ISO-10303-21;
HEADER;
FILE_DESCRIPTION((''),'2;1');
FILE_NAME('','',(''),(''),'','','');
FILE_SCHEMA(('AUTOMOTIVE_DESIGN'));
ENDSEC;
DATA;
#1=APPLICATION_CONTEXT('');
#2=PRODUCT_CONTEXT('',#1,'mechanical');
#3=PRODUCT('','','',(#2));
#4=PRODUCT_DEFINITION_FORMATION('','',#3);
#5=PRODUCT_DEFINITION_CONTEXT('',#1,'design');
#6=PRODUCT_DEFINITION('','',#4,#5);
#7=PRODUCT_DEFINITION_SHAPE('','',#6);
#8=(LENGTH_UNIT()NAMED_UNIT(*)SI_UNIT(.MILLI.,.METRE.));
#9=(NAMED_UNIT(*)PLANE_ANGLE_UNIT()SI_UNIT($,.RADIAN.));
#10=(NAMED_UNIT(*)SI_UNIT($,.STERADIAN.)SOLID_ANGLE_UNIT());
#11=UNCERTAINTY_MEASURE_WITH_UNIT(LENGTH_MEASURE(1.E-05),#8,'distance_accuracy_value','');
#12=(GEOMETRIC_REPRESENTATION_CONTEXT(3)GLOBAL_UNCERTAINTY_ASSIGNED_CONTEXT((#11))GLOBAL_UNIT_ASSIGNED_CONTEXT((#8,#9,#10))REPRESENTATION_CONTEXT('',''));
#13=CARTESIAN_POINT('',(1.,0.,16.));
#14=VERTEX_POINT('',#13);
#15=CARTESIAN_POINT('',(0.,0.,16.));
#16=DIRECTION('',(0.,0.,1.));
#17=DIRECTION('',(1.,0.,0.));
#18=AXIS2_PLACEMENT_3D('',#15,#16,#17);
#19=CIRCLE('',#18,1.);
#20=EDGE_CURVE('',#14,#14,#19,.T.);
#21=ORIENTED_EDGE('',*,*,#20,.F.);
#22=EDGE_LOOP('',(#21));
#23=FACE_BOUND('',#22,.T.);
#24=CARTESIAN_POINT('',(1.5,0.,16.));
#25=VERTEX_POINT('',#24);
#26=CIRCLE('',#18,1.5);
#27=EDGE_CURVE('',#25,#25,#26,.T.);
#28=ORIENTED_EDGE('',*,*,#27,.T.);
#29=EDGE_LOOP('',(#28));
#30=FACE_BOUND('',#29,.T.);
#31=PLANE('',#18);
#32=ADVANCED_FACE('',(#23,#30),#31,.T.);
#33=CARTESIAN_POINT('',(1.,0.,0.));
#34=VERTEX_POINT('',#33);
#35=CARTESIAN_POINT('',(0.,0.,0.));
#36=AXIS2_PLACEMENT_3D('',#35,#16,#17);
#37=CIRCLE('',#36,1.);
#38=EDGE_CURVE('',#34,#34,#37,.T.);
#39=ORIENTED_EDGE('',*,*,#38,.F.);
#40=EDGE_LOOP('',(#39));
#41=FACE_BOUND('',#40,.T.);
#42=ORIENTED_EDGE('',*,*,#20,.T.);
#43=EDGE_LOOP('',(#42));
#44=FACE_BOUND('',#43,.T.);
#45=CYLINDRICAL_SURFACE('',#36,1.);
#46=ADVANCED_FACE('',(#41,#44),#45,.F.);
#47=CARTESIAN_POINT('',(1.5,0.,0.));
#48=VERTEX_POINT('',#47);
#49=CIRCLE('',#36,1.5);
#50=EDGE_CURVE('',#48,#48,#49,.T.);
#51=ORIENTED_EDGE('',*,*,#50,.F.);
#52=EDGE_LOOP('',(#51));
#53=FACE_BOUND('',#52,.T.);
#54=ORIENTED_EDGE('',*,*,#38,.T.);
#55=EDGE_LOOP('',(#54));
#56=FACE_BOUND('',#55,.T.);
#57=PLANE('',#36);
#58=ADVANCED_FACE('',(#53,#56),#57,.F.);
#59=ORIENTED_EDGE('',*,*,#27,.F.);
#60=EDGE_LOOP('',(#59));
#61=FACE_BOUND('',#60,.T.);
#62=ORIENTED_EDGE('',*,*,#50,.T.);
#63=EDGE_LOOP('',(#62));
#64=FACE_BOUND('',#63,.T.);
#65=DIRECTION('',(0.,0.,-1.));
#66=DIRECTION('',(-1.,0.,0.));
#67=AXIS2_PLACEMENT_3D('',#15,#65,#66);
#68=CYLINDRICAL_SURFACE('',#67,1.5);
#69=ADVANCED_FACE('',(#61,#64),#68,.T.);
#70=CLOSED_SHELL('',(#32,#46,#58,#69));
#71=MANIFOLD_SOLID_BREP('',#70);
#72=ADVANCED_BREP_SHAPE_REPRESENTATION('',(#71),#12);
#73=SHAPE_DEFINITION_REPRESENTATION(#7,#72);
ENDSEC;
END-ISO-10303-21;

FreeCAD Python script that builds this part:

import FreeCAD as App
import Part
import Sketcher

V = App.Vector
Q = App.Units.Quantity

doc = App.newDocument("Part")
params = doc.addObject("Spreadsheet::Sheet", "Params")
for row, (alias, value) in enumerate([
    ("sketch1_diameter", "3 mm"),
    ("pad1_length", "16 mm"),
    ("sketch2_diameter", "2 mm"),
    ("pocket1_length", "16 mm"),
], start=1):
    params.set(f"A{row}", alias)
    params.set(f"B{row}", "=" + value)
    params.setAlias(f"B{row}", alias)

body = doc.addObject("PartDesign::Body", "Body")

# Sketch on XY plane
sketch1 = body.newObject("Sketcher::SketchObject", "Sketch")
sketch1.AttachmentSupport = (doc.getObject("XY_Plane"), [""])
sketch1.MapMode = "FlatFace"
sketch1.addGeometry(Part.Circle(V(0, 0, 0), V(0, 0, 1), 1.5), False)
sketch1.addConstraint(Sketcher.Constraint("Coincident", 0, 3, -1, 1))
sketch1.addConstraint(Sketcher.Constraint("Diameter", 0, Q("3 mm")))
sketch1.setExpression("Constraints[1]", "Params.sketch1_diameter")
pad1 = body.newObject("PartDesign::Pad", "Pad")
pad1.Profile = sketch1
pad1.setExpression("Length", "Params.pad1_length")

# Sketch on XY plane
sketch2 = body.newObject("Sketcher::SketchObject", "Sketch001")
sketch2.AttachmentSupport = (doc.getObject("XY_Plane"), [""])
sketch2.MapMode = "FlatFace"
sketch2.AttachmentOffset = App.Placement(V(0, 0, 16), App.Rotation())
sketch2.addGeometry(Part.Circle(V(0, 0, 0), V(0, 0, 1), 1), False)
sketch2.addConstraint(Sketcher.Constraint("Coincident", 0, 3, -1, 1))
sketch2.addConstraint(Sketcher.Constraint("Diameter", 0, Q("2 mm")))
sketch2.setExpression("Constraints[1]", "Params.sketch2_diameter")
pocket1 = body.newObject("PartDesign::Pocket", "Pocket")
pocket1.Profile = sketch2
pocket1.setExpression("Length", "Params.pocket1_length")

doc.recompute()
